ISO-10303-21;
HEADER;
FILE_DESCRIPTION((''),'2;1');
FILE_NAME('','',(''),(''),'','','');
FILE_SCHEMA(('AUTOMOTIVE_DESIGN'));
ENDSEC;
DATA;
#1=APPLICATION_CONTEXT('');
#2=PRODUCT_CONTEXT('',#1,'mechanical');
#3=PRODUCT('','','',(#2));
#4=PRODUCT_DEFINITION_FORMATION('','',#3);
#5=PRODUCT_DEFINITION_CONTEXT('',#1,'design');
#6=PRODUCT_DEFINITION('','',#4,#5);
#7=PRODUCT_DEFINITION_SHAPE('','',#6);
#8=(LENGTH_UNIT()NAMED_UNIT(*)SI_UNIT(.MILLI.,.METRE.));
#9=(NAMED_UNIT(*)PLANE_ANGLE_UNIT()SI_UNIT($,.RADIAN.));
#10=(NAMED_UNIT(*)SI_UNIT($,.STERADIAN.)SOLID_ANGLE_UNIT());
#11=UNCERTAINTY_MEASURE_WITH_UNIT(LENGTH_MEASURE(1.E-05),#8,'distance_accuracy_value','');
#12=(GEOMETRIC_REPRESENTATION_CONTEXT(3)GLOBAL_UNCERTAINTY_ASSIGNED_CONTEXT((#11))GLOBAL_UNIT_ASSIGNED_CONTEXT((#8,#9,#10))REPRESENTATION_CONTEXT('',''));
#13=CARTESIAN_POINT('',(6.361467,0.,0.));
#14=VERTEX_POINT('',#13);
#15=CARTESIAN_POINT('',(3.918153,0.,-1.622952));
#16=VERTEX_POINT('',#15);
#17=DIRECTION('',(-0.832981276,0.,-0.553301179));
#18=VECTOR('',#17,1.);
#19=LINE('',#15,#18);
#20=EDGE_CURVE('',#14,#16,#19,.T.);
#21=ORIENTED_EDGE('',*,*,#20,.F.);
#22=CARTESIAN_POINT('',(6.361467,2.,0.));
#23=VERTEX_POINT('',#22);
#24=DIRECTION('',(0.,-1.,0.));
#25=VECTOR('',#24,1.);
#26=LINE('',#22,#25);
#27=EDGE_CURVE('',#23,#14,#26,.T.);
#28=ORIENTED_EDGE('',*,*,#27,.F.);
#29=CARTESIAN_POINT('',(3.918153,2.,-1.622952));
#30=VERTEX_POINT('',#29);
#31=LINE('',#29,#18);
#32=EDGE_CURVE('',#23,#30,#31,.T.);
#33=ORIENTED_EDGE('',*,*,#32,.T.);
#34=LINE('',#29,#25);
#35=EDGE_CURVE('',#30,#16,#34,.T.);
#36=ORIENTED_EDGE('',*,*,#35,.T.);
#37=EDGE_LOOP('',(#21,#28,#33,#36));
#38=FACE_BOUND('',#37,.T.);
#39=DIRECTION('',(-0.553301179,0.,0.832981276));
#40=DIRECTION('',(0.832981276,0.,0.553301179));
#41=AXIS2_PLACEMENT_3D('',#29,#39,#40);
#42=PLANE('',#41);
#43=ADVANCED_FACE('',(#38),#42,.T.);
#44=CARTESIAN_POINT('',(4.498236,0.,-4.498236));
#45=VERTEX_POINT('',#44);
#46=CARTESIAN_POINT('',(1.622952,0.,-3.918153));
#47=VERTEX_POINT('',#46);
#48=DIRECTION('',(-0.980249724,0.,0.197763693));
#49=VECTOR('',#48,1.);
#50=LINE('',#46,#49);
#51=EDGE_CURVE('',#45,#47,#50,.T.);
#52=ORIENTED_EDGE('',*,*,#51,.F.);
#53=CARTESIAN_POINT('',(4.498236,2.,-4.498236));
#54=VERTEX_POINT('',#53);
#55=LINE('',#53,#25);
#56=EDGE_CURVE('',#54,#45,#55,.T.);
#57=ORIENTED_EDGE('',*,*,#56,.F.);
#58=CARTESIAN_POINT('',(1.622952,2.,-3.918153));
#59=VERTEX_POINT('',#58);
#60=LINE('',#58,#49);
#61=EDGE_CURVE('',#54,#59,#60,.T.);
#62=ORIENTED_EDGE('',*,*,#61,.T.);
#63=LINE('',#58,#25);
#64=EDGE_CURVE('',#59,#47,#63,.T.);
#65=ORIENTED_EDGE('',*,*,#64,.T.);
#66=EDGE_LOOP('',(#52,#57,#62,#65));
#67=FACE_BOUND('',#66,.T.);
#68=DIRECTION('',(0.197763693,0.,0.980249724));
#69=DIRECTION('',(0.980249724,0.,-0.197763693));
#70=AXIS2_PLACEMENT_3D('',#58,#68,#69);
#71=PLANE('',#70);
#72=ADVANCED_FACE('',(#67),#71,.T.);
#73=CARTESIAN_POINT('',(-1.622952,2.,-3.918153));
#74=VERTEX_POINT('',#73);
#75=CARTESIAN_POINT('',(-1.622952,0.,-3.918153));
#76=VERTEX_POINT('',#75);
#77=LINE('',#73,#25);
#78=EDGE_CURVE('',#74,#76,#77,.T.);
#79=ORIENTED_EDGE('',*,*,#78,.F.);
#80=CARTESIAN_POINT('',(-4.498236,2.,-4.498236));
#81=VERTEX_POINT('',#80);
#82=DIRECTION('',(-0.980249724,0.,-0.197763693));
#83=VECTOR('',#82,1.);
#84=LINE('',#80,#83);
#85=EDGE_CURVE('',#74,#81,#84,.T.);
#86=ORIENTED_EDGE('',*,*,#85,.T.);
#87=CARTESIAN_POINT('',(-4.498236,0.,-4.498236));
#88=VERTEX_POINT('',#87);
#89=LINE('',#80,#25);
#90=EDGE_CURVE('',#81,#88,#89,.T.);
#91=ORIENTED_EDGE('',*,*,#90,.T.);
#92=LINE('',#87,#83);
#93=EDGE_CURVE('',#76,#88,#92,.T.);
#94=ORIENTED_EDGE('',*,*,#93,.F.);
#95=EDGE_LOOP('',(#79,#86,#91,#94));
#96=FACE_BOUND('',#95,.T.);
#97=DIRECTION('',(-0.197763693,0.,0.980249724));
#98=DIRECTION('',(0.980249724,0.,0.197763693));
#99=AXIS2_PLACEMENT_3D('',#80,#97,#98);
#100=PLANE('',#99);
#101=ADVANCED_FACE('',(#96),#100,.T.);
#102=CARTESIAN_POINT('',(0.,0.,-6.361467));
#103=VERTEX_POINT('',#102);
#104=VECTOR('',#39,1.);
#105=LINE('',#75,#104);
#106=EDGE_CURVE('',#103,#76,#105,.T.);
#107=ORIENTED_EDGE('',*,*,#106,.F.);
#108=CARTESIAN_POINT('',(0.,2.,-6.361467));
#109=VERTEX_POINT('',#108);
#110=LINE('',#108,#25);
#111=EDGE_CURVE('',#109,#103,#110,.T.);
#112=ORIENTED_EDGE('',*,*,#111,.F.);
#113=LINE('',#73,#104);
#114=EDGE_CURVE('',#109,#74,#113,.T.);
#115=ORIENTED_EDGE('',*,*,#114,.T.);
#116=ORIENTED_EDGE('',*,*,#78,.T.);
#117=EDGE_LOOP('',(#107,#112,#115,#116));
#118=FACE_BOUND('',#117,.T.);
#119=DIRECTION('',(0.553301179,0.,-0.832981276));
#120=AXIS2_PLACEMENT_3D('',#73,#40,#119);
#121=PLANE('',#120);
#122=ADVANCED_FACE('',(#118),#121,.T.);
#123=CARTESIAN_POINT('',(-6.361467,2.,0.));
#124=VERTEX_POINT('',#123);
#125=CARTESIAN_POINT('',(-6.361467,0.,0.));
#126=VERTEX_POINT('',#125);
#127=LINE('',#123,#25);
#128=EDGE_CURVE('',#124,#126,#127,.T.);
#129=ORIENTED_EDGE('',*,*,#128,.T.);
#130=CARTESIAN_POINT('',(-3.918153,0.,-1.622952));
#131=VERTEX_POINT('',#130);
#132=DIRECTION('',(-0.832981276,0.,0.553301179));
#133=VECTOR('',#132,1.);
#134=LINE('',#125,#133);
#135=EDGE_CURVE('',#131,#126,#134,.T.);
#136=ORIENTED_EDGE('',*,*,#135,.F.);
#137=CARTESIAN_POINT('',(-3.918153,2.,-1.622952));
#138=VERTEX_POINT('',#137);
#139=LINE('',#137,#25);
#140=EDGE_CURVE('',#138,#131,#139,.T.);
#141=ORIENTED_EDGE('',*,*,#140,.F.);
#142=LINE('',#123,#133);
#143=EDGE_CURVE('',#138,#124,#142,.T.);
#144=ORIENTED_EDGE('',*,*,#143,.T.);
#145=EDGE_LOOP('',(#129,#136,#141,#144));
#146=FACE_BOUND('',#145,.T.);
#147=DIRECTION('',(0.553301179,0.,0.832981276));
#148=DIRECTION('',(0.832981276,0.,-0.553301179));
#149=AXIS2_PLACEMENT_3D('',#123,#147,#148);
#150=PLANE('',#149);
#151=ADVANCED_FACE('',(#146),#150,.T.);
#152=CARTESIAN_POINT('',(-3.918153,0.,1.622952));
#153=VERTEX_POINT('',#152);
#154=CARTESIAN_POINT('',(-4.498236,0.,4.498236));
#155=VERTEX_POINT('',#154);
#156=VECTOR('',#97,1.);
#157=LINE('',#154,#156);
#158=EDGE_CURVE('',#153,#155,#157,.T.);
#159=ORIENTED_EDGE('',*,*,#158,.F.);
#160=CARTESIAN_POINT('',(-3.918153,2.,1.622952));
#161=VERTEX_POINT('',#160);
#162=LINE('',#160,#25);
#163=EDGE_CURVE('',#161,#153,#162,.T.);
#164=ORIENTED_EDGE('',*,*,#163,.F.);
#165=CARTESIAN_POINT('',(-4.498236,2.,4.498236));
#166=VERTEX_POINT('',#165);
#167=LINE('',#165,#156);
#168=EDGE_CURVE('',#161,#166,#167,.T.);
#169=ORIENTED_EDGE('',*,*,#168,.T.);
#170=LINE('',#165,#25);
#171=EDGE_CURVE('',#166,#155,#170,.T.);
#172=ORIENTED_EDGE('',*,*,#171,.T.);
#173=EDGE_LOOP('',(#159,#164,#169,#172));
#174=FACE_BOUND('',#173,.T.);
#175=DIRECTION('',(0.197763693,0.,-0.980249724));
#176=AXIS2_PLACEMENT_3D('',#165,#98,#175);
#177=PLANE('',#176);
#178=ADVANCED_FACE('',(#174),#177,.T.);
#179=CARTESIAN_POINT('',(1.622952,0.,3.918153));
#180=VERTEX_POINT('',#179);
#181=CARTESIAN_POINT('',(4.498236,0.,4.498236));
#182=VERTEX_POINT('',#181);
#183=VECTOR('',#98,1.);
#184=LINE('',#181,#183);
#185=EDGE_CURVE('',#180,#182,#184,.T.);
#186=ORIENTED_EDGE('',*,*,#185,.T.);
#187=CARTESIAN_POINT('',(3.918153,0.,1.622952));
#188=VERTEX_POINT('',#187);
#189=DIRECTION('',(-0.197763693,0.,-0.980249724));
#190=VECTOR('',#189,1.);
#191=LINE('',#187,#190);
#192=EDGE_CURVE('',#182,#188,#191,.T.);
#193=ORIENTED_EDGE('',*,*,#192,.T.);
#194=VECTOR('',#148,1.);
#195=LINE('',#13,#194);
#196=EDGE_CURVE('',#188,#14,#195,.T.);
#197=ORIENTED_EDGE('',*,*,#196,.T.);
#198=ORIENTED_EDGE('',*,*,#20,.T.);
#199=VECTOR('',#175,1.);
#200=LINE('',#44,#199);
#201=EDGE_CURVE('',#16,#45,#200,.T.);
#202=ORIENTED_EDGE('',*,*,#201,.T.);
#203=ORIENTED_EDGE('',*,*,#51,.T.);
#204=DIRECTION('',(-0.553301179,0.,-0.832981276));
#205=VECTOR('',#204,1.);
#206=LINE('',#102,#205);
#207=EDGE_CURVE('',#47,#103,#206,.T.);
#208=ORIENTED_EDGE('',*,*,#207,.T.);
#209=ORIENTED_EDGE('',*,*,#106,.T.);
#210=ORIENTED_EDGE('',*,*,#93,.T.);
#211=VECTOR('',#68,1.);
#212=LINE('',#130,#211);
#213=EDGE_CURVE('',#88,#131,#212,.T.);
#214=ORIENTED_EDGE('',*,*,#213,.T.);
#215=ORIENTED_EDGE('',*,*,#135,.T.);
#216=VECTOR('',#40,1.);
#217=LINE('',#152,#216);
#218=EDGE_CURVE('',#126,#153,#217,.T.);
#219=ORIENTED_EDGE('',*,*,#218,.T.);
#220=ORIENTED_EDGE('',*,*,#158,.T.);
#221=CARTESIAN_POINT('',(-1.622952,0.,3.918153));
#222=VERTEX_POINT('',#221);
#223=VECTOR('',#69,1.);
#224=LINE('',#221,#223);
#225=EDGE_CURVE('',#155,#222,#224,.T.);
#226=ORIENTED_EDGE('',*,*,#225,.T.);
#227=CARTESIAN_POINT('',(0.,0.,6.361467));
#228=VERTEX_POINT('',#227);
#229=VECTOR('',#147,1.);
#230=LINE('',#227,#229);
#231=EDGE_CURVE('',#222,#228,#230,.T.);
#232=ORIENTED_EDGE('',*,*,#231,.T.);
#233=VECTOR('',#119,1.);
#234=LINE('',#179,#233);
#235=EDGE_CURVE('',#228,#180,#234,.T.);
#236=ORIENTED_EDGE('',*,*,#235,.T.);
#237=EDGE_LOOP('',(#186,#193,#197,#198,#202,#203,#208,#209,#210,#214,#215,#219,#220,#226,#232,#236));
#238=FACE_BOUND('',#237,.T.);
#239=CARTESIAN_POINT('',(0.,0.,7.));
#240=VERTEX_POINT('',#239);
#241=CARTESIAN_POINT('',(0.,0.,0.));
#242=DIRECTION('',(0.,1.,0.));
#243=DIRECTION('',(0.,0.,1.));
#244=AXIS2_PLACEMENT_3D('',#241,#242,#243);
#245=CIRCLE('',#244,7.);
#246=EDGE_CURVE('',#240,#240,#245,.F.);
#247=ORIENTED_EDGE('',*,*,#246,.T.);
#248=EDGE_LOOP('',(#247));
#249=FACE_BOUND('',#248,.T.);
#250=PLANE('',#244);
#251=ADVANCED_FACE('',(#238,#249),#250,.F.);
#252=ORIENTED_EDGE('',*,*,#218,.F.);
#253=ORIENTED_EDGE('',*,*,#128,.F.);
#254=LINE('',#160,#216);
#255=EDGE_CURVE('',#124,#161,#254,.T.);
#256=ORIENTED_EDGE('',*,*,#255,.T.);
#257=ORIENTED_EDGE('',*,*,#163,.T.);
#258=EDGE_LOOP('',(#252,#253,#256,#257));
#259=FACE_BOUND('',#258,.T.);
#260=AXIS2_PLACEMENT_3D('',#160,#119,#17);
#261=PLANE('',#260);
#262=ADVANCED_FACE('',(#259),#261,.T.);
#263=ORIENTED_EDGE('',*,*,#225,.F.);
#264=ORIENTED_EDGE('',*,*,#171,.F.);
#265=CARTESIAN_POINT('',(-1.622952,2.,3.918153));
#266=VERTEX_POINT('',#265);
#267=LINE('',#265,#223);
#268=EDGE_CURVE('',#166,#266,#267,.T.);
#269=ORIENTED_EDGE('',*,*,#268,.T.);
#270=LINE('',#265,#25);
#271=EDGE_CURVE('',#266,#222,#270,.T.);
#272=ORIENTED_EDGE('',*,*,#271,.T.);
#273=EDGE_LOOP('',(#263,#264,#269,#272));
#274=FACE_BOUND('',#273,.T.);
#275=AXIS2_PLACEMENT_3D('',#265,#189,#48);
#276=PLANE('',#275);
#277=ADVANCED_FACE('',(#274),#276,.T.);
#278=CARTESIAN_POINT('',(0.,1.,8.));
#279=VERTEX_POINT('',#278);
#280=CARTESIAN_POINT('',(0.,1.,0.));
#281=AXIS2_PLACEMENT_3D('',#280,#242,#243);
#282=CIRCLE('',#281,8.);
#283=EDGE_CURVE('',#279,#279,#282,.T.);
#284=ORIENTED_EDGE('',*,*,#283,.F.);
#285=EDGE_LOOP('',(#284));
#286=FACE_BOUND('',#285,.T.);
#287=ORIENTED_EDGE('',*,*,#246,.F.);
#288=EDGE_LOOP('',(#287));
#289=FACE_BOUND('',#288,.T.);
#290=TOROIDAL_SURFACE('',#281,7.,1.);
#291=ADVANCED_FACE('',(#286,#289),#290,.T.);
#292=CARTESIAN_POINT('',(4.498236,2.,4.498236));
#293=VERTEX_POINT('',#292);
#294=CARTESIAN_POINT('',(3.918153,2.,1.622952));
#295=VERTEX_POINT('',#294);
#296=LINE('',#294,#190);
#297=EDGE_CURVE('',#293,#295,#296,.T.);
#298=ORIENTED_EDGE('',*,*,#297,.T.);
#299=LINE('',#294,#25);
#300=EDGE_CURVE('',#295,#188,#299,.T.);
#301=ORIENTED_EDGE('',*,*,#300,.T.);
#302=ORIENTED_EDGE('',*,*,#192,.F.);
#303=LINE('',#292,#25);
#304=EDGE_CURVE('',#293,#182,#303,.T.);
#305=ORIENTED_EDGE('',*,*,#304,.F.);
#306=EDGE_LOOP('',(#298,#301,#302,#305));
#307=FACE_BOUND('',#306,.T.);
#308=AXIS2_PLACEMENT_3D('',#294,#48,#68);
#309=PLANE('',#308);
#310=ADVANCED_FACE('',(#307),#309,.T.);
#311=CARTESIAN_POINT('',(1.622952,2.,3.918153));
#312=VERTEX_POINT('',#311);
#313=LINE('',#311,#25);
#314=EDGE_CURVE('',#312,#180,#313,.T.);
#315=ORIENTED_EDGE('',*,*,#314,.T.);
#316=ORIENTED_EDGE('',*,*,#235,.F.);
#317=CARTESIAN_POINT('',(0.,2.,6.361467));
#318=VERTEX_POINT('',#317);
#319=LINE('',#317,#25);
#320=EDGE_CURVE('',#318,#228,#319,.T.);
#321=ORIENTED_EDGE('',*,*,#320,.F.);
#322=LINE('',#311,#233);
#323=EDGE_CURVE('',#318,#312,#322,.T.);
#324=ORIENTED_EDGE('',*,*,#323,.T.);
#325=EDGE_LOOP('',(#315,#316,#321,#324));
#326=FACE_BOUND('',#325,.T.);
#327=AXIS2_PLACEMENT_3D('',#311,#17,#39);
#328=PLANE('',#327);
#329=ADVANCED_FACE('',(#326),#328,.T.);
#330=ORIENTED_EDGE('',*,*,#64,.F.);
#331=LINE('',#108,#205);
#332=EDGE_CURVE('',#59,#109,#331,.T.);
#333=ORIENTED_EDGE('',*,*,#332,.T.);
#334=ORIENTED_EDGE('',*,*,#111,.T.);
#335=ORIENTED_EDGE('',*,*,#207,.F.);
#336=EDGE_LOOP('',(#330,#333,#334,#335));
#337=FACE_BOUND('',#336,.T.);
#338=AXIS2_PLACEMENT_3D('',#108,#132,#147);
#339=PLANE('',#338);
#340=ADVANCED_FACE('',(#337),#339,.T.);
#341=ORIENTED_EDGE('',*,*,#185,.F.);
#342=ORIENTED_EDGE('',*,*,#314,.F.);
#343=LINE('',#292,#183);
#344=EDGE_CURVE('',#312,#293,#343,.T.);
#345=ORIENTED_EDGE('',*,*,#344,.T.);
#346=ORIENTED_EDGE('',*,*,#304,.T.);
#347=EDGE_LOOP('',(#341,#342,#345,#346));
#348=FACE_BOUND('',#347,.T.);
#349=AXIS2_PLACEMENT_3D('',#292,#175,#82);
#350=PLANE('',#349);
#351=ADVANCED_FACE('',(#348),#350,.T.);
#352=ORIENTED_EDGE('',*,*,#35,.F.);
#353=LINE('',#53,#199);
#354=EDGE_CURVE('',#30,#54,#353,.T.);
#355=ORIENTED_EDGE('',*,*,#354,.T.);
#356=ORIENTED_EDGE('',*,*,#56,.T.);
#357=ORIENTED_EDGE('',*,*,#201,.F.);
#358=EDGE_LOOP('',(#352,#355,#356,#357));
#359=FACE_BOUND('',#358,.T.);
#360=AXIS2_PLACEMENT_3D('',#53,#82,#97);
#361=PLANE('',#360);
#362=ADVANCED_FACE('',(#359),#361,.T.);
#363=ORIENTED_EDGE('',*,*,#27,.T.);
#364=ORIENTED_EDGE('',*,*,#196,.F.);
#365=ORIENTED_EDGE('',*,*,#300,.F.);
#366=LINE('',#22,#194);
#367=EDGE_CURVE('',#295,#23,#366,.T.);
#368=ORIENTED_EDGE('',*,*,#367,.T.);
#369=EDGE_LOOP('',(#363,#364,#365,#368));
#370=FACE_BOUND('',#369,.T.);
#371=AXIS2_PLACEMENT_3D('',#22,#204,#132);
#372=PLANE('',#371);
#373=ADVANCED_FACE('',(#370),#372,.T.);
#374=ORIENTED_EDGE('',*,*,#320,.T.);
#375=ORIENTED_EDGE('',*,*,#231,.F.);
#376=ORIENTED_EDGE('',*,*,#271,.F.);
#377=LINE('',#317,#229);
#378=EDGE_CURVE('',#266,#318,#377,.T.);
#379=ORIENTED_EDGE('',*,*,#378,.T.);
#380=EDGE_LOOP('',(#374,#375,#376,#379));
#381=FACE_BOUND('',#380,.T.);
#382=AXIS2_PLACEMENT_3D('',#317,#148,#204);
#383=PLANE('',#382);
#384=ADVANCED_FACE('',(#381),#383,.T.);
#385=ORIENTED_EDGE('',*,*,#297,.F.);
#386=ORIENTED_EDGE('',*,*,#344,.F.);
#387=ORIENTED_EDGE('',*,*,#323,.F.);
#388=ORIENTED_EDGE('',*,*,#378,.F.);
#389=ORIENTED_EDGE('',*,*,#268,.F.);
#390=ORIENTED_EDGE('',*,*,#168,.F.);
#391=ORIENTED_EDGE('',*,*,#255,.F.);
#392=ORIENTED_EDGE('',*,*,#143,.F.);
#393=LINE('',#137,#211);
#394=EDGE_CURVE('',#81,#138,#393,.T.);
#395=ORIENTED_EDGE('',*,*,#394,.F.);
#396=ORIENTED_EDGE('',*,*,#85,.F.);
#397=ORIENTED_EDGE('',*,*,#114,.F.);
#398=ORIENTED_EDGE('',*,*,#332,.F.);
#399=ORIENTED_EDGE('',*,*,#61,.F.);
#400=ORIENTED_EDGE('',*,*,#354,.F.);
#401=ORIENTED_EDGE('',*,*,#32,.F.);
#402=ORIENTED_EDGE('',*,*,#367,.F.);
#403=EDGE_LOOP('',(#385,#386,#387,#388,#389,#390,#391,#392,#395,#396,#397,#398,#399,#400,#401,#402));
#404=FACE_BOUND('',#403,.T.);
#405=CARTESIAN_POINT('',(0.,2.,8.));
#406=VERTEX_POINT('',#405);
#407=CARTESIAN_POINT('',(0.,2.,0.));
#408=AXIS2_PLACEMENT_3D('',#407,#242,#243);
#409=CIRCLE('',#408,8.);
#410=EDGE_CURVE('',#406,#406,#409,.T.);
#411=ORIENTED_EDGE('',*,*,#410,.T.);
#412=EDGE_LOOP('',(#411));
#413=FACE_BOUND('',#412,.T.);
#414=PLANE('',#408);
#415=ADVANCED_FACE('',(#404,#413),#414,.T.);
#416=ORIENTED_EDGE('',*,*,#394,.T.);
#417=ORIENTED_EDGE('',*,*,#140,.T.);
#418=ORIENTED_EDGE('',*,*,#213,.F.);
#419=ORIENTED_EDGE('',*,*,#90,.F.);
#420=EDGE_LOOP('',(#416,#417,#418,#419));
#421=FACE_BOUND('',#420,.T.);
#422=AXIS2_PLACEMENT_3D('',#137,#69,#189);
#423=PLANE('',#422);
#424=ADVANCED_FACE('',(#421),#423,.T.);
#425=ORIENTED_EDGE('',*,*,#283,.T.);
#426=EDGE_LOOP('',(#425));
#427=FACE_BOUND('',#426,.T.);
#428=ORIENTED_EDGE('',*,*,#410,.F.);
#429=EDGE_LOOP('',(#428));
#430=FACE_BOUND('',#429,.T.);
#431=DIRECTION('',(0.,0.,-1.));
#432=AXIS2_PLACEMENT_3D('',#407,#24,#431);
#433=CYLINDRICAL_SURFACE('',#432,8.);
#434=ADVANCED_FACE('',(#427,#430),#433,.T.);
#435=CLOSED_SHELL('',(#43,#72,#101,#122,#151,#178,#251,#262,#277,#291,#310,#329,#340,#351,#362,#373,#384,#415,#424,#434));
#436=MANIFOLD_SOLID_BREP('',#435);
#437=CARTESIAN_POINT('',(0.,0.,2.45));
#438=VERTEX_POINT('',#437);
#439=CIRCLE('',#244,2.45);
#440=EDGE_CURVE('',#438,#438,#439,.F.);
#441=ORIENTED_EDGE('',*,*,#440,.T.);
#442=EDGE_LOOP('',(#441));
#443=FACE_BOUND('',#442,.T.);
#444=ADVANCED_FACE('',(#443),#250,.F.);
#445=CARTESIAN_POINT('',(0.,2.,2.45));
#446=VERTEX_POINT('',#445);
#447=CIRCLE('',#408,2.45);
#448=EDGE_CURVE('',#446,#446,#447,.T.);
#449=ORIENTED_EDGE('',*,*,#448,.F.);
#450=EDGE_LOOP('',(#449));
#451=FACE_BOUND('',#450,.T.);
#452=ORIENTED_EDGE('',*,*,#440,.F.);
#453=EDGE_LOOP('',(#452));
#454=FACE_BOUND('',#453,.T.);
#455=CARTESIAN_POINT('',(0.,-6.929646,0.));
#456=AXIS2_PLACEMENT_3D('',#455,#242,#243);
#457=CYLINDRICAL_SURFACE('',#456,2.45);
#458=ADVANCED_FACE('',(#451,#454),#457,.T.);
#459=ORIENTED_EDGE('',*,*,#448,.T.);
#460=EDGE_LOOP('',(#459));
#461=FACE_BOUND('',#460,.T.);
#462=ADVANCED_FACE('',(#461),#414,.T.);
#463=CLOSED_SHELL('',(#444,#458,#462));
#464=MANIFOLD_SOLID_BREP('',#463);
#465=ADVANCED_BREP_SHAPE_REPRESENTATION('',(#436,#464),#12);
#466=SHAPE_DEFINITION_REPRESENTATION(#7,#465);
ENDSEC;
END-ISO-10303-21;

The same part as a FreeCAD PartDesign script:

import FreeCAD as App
import Part
import Sketcher
Q = App.Units.Quantity


def edges_at(feature, points):
    """Names of the edges that pass closest to the given points."""
    edges = feature.Shape.Edges
    near = lambda p: min(range(len(edges)), key=lambda i: edges[i].distToShape(Part.Vertex(*p))[0])
    return sorted({f"Edge{near(p) + 1}" for p in points})

doc = App.newDocument("Part")
body = doc.addObject("PartDesign::Body", "Body")

# Sketch on XZ plane
sketch1 = body.newObject("Sketcher::SketchObject", "Sketch")
sketch1.AttachmentSupport = (doc.getObject("XZ_Plane"), [""])
sketch1.MapMode = "FlatFace"
sketch1.addGeometry([
    Part.Circle(App.Vector(0, 0, 0), App.Vector(0, 0, 1), 8),  # 0
    Part.LineSegment(App.Vector(-6.4, 0, 0), App.Vector(-3.9, -1.6, 0)),  # 1
    Part.LineSegment(App.Vector(-3.9, -1.6, 0), App.Vector(-4.5, -4.5, 0)),  # 2
    Part.LineSegment(App.Vector(-4.5, -4.5, 0), App.Vector(-1.6, -3.9, 0)),  # 3
    Part.LineSegment(App.Vector(-1.6, -3.9, 0), App.Vector(0, -6.4, 0)),  # 4
    Part.LineSegment(App.Vector(0, -6.4, 0), App.Vector(1.6, -3.9, 0)),  # 5
    Part.LineSegment(App.Vector(1.6, -3.9, 0), App.Vector(4.5, -4.5, 0)),  # 6
    Part.LineSegment(App.Vector(4.5, -4.5, 0), App.Vector(3.9, -1.6, 0)),  # 7
    Part.LineSegment(App.Vector(3.9, -1.6, 0), App.Vector(6.4, 0, 0)),  # 8
    Part.LineSegment(App.Vector(6.4, 0, 0), App.Vector(3.9, 1.6, 0)),  # 9
    Part.LineSegment(App.Vector(3.9, 1.6, 0), App.Vector(4.5, 4.5, 0)),  # 10
    Part.LineSegment(App.Vector(4.5, 4.5, 0), App.Vector(1.6, 3.9, 0)),  # 11
    Part.LineSegment(App.Vector(1.6, 3.9, 0), App.Vector(0, 6.4, 0)),  # 12
    Part.LineSegment(App.Vector(0, 6.4, 0), App.Vector(-1.6, 3.9, 0)),  # 13
    Part.LineSegment(App.Vector(-1.6, 3.9, 0), App.Vector(-4.5, 4.5, 0)),  # 14
    Part.LineSegment(App.Vector(-4.5, 4.5, 0), App.Vector(-3.9, 1.6, 0)),  # 15
    Part.LineSegment(App.Vector(-3.9, 1.6, 0), App.Vector(-6.4, 0, 0)),  # 16
], False)
sketch1.addConstraint([
    Sketcher.Constraint("Coincident", 1, 2, 2, 1),
    Sketcher.Constraint("Coincident", 2, 2, 3, 1),
    Sketcher.Constraint("Coincident", 3, 2, 4, 1),
    Sketcher.Constraint("Coincident", 4, 2, 5, 1),
    Sketcher.Constraint("Coincident", 5, 2, 6, 1),
    Sketcher.Constraint("Coincident", 6, 2, 7, 1),
    Sketcher.Constraint("Coincident", 7, 2, 8, 1),
    Sketcher.Constraint("Coincident", 8, 2, 9, 1),
    Sketcher.Constraint("Coincident", 9, 2, 10, 1),
    Sketcher.Constraint("Coincident", 10, 2, 11, 1),
    Sketcher.Constraint("Coincident", 11, 2, 12, 1),
    Sketcher.Constraint("Coincident", 12, 2, 13, 1),
    Sketcher.Constraint("Coincident", 13, 2, 14, 1),
    Sketcher.Constraint("Coincident", 14, 2, 15, 1),
    Sketcher.Constraint("Coincident", 15, 2, 16, 1),
    Sketcher.Constraint("Coincident", 16, 2, 1, 1),
    Sketcher.Constraint("Coincident", 0, 3, -1, 1),
    Sketcher.Constraint("Symmetric", 1, 2, 9, 2, -1, 1),
    Sketcher.Constraint("Symmetric", 2, 2, 10, 2, -1, 1),
    Sketcher.Constraint("Symmetric", 3, 2, 11, 2, -1, 1),
    Sketcher.Constraint("Symmetric", 4, 2, 12, 2, -1, 1),
    Sketcher.Constraint("Symmetric", 5, 2, 13, 2, -1, 1),
    Sketcher.Constraint("Symmetric", 6, 2, 14, 2, -1, 1),
    Sketcher.Constraint("Symmetric", 7, 2, 15, 2, -1, 1),
    Sketcher.Constraint("Symmetric", 8, 2, 16, 2, -1, 1),
    Sketcher.Constraint("Symmetric", 3, 2, 5, 2, -2),
    Sketcher.Constraint("Symmetric", 2, 2, 6, 2, -2),
    Sketcher.Constraint("Symmetric", 1, 2, 7, 2, -2),
    Sketcher.Constraint("PointOnObject", 4, 2, -2),
    Sketcher.Constraint("PointOnObject", 8, 2, -1),
    Sketcher.Constraint("Perpendicular", 1, 5),
    Sketcher.Constraint("Perpendicular", 2, 6),
    Sketcher.Constraint("Equal", 1, 2),
    Sketcher.Constraint("Equal", 2, 3),
    Sketcher.Constraint("Equal", 3, 4),
    Sketcher.Constraint("Diameter", 0, Q("16 mm")),
    Sketcher.Constraint("DistanceX", 1, 2, 3, 2, Q("2.295201 mm")),
    Sketcher.Constraint("DistanceY", 1, 2, -1, 1, Q("1.622952 mm")),
    Sketcher.Constraint("DistanceY", 4, 2, 2, 2, Q("1.86323 mm")),
])
pad1 = body.newObject("PartDesign::Pad", "Pad")
pad1.Profile = sketch1
pad1.Length = 2
pad1.Reversed = True
doc.recompute()

fillet = body.newObject("PartDesign::Fillet", "Fillet")
fillet.Base = (pad1, edges_at(pad1, [(0, 0, -8)]))
fillet.Radius = 1
body2 = doc.addObject("PartDesign::Body", "Body001")

# Sketch on XZ plane
sketch2 = body2.newObject("Sketcher::SketchObject", "Sketch001")
sketch2.AttachmentSupport = (doc.getObject("XZ_Plane001"), [""])
sketch2.MapMode = "FlatFace"
sketch2.AttachmentOffset = App.Placement(App.Vector(0, 0, -2), App.Rotation())
sketch2.addGeometry(Part.Circle(App.Vector(0, 0, 0), App.Vector(0, 0, 1), 2.5), False)
sketch2.addConstraint([
    Sketcher.Constraint("Coincident", 0, 3, -1, 1),
    Sketcher.Constraint("Diameter", 0, Q("4.9 mm")),
])
pad2 = body2.newObject("PartDesign::Pad", "Pad001")
pad2.Profile = sketch2
pad2.Length = 2

doc.recompute()
